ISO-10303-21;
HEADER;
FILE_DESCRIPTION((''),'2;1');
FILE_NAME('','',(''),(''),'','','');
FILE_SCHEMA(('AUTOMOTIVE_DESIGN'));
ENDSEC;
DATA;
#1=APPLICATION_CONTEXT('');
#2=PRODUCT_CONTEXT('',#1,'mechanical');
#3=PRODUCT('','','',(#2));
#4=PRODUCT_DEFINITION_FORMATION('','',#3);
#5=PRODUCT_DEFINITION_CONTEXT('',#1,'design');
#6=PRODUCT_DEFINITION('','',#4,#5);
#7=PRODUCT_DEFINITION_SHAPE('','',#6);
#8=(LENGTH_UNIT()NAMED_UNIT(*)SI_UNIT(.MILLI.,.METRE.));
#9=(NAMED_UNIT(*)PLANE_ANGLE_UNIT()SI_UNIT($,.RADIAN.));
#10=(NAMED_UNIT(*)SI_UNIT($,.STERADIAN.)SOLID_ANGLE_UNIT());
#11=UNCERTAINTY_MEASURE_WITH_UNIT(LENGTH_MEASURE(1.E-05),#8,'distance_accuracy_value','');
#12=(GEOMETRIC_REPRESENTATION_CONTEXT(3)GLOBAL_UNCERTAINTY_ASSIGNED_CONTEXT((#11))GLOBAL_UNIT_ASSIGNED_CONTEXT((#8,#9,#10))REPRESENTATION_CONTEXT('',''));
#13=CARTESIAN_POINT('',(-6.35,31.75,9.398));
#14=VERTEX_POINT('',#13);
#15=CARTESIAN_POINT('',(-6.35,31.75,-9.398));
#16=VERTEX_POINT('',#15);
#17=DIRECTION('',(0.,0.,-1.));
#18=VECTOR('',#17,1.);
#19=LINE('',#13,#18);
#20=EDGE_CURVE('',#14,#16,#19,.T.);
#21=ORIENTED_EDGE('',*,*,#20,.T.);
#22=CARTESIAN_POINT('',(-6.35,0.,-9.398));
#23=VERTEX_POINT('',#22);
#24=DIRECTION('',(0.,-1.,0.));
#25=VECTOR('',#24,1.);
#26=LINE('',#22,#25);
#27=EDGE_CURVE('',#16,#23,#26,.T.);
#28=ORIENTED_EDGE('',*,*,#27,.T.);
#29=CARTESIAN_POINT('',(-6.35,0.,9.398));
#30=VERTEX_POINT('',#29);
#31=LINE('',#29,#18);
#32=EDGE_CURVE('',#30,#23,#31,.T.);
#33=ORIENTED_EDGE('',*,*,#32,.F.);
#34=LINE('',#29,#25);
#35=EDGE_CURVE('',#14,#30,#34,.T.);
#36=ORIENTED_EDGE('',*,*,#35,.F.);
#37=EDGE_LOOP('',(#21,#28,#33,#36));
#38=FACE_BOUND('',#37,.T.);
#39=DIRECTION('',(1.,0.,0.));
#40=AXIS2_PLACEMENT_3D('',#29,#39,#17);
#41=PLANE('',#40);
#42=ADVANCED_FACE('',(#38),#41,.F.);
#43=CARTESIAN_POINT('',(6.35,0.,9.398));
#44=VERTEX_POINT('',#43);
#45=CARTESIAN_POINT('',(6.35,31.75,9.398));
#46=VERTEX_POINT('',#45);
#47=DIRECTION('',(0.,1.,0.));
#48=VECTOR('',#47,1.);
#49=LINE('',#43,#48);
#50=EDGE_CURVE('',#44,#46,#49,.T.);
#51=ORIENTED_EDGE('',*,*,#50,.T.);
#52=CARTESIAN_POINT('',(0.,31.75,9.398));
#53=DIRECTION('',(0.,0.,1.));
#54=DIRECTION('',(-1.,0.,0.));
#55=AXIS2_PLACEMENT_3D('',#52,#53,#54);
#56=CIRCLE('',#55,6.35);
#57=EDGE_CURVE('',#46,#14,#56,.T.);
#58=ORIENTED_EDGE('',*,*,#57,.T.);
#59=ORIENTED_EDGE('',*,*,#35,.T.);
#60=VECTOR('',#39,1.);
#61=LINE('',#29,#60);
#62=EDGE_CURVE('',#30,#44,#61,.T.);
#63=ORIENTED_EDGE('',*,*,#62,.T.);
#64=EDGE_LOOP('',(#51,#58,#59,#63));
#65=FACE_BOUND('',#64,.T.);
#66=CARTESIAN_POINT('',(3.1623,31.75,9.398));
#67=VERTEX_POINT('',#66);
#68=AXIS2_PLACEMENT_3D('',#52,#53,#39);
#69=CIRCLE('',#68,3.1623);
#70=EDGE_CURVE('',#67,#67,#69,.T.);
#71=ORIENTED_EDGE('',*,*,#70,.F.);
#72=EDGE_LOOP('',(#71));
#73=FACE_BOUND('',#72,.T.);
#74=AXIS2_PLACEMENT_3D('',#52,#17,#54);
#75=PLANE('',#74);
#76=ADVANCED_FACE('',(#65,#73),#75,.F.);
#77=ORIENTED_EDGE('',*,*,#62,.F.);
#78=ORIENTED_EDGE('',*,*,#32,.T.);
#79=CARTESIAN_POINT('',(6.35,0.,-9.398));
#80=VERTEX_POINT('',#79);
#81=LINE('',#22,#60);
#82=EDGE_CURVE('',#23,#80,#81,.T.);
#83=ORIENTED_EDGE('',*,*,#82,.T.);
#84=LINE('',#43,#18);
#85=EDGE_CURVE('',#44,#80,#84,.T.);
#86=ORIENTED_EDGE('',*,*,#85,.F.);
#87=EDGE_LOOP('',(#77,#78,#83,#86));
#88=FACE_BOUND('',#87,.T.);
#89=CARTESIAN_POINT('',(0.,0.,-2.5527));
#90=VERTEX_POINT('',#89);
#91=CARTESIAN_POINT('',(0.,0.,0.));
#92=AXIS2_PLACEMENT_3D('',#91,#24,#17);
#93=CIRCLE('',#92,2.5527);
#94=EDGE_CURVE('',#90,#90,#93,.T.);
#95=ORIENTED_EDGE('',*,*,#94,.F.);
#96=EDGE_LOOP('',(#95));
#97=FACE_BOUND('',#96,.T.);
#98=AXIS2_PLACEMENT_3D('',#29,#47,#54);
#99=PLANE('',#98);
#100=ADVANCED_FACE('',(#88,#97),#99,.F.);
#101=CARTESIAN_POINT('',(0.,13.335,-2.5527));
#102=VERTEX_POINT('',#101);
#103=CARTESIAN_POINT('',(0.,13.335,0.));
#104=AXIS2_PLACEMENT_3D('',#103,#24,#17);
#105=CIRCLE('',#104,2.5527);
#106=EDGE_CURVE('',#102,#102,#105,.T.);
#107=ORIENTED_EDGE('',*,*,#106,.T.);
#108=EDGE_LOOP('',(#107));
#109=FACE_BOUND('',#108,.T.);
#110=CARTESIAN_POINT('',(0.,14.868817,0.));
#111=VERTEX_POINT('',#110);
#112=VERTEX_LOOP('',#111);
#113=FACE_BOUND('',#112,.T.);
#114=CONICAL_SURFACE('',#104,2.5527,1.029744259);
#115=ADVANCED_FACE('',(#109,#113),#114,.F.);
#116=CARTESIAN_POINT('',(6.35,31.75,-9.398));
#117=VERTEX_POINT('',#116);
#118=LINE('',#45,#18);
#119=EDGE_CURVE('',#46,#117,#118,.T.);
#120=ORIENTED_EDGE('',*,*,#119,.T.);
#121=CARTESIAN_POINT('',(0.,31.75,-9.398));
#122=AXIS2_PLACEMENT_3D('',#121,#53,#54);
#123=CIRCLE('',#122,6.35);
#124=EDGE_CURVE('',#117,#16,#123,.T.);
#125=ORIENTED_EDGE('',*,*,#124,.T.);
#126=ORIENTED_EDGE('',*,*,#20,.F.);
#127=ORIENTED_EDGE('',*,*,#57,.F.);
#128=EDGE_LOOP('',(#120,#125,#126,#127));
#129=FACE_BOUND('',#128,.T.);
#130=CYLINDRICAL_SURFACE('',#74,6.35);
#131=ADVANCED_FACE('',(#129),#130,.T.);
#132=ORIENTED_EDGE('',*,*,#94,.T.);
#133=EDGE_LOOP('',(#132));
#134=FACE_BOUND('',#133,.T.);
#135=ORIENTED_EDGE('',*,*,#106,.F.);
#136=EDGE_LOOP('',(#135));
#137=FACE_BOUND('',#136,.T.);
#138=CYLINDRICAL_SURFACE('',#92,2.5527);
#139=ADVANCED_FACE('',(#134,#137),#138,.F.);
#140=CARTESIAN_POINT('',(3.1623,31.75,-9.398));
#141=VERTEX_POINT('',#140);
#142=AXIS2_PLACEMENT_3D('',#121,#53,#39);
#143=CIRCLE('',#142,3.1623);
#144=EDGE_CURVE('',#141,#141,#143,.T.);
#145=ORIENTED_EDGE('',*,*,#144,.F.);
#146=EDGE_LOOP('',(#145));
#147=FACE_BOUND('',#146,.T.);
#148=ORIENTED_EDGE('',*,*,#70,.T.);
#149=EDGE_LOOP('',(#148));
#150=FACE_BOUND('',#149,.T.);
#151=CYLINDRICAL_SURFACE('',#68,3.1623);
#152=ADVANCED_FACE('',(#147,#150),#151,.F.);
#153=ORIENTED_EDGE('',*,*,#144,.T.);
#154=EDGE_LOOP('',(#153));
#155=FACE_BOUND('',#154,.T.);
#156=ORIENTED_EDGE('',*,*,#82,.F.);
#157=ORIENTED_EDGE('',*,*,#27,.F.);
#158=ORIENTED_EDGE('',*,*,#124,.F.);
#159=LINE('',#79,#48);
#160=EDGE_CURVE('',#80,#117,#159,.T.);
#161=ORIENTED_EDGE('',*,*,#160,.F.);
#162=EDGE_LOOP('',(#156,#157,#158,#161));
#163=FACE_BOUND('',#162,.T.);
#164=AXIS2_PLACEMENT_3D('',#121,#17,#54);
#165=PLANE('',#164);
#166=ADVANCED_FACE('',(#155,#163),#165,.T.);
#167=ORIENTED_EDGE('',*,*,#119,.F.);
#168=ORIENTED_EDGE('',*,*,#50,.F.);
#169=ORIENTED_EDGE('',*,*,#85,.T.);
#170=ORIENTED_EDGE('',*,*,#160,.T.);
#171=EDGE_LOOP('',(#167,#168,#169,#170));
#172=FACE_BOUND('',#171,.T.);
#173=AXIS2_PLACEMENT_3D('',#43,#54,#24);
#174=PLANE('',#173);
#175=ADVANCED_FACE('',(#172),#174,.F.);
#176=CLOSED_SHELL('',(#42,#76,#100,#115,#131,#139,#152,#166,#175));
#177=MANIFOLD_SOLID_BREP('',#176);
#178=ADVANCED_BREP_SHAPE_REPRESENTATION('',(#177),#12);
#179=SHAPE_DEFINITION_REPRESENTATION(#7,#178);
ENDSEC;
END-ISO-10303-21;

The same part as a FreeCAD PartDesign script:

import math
import FreeCAD as App
import Part
import Sketcher

V = App.Vector
Q = App.Units.Quantity

doc = App.newDocument("Part")
params = doc.addObject("Spreadsheet::Sheet", "Params")
for row, (alias, value) in enumerate([
    ("sketch1_radius", "0.25 in"),
    ("sketch1_height", "1.25 in"),
    ("pad1_length", "0.74 in"),
    ("sketch2_diameter", "0.249 in"),
    ("hole_diameter", "0.249 in"),
    ("sketch3_diameter", "0.201 in"),
    ("hole2_diameter", "0.201 in"),
    ("hole2_depth", "0.525 in"),
], start=1):
    params.set(f"A{row}", alias)
    params.set(f"B{row}", "=" + value)
    params.setAlias(f"B{row}", alias)

body = doc.addObject("PartDesign::Body", "Body")

# Sketch on XY plane
sketch1 = body.newObject("Sketcher::SketchObject", "Sketch")
sketch1.AttachmentSupport = (doc.getObject("XY_Plane"), [""])
sketch1.MapMode = "FlatFace"
sketch1.addGeometry(Part.LineSegment(V(-6.35, 0, 0), V(6.35, 0, 0)), False)
sketch1.addGeometry(Part.LineSegment(V(6.35, 0, 0), V(6.35, 31.75, 0)), False)
sketch1.addGeometry(Part.ArcOfCircle(Part.Circle(V(0, 31.75, 0), V(0, 0, 1), 6.35), math.radians(0), math.radians(180)), False)
sketch1.addGeometry(Part.LineSegment(V(-6.35, 31.75, 0), V(-6.35, 0, 0)), False)
sketch1.addConstraint(Sketcher.Constraint("Coincident", 0, 2, 1, 1))
sketch1.addConstraint(Sketcher.Constraint("Tangent", 1, 2, 2, 1))
sketch1.addConstraint(Sketcher.Constraint("Tangent", 2, 2, 3, 1))
sketch1.addConstraint(Sketcher.Constraint("Coincident", 3, 2, 0, 1))
sketch1.addConstraint(Sketcher.Constraint("Horizontal", 0))
sketch1.addConstraint(Sketcher.Constraint("Vertical", 1))
sketch1.addConstraint(Sketcher.Constraint("Vertical", 3))
sketch1.addConstraint(Sketcher.Constraint("Symmetric", 0, 2, 3, 2, -1, 1))
sketch1.addConstraint(Sketcher.Constraint("Radius", 2, Q("0.25 in")))
sketch1.addConstraint(Sketcher.Constraint("DistanceY", 1, 1, 1, 2, Q("1.25 in")))
sketch1.setExpression("Constraints[8]", "Params.sketch1_radius")
sketch1.setExpression("Constraints[9]", "Params.sketch1_height")
pad1 = body.newObject("PartDesign::Pad", "Pad")
pad1.Profile = sketch1
pad1.setExpression("Length", "Params.pad1_length")
pad1.Midplane = True

# Sketch on XY plane
sketch2 = body.newObject("Sketcher::SketchObject", "Sketch001")
sketch2.AttachmentSupport = (doc.getObject("XY_Plane"), [""])
sketch2.MapMode = "FlatFace"
sketch2.AttachmentOffset = App.Placement(V(0, 0, 0.37 * 25.4), App.Rotation())
sketch2.addGeometry(Part.Circle(V(0, 31.75, 0), V(0, 0, 1), 3.1623), False)
sketch2.addConstraint(Sketcher.Constraint("PointOnObject", 0, 3, -2))
sketch2.addConstraint(Sketcher.Constraint("Diameter", 0, Q("0.249 in")))
sketch2.addConstraint(Sketcher.Constraint("DistanceY", -1, 1, 0, 3, Q("1.25 in")))
sketch2.setExpression("Constraints[1]", "Params.sketch2_diameter")
doc.recompute()
hole = body.newObject("PartDesign::Hole", "Hole")
hole.Profile = sketch2
hole.ThreadType = "None"
hole.setExpression("Diameter", "Params.hole_diameter")
hole.DepthType = "ThroughAll"

# Sketch on XZ plane
sketch3 = body.newObject("Sketcher::SketchObject", "Sketch002")
sketch3.AttachmentSupport = (doc.getObject("XZ_Plane"), [""])
sketch3.MapMode = "FlatFace"
sketch3.addGeometry(Part.Circle(V(0, 0, 0), V(0, 0, 1), 2.5527), False)
sketch3.addConstraint(Sketcher.Constraint("Coincident", 0, 3, -1, 1))
sketch3.addConstraint(Sketcher.Constraint("Diameter", 0, Q("0.201 in")))
sketch3.setExpression("Constraints[1]", "Params.sketch3_diameter")
doc.recompute()
hole2 = body.newObject("PartDesign::Hole", "Hole001")
hole2.Profile = sketch3
hole2.ThreadType = "None"
hole2.setExpression("Diameter", "Params.hole2_diameter")
hole2.DepthType = "Dimension"
hole2.setExpression("Depth", "Params.hole2_depth")
hole2.DrillPoint = "Angled"
hole2.DrillPointAngle = 118

doc.recompute()
